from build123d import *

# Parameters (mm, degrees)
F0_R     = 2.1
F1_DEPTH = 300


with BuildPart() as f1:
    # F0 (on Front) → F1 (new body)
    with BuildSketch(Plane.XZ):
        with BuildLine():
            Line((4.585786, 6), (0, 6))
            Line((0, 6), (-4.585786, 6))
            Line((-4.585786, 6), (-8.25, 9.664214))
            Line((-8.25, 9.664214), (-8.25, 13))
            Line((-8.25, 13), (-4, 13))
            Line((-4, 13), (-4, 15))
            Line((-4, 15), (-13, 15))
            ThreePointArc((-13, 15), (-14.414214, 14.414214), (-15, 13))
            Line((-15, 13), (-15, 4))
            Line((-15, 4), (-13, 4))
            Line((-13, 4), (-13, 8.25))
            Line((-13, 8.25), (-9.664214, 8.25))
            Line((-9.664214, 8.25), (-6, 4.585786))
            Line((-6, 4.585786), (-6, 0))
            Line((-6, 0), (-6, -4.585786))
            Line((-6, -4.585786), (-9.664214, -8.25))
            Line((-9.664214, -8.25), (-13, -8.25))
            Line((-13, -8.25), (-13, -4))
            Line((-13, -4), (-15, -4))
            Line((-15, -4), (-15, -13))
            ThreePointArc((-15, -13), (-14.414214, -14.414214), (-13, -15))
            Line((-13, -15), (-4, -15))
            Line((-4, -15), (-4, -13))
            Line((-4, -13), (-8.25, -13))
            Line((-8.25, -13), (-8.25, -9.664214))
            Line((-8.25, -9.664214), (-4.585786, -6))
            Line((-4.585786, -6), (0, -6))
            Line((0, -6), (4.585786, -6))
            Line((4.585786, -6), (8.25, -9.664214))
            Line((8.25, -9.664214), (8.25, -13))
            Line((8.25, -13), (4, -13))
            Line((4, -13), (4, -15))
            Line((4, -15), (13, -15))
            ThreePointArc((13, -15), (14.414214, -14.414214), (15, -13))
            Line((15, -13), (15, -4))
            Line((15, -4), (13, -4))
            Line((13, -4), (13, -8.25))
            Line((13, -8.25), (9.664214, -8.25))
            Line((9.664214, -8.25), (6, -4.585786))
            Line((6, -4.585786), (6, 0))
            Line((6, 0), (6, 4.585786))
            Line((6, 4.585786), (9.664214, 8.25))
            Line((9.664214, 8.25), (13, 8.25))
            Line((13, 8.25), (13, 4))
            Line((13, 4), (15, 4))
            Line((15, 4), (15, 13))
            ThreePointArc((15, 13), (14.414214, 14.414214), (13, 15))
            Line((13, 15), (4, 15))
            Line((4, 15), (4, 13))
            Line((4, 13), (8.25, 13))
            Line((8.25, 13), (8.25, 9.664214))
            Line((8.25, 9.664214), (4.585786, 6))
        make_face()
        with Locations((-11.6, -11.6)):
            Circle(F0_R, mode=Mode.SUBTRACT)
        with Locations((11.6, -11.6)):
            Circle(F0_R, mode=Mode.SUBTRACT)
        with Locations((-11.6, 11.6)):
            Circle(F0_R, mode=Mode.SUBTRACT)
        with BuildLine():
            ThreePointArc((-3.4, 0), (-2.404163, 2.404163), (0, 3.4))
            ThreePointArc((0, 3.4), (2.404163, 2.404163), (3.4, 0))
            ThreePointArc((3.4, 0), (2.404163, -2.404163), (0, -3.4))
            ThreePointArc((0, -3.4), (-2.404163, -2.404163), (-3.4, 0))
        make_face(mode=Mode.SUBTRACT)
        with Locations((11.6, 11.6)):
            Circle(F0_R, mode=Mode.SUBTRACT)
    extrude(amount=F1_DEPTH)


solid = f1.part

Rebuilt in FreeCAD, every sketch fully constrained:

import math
import FreeCAD as App
import Part
import Sketcher

V = App.Vector
Q = App.Units.Quantity

doc = App.newDocument("Part")
body = doc.addObject("PartDesign::Body", "Body")

# Sketch on XZ plane
sketch1 = body.newObject("Sketcher::SketchObject", "Sketch")
sketch1.AttachmentSupport = (doc.getObject("XZ_Plane"), [""])
sketch1.MapMode = "FlatFace"
sketch1.addGeometry([
    Part.LineSegment(V(4.585786, 6, 0), V(-4.585786, 6, 0)),  # 0
    Part.LineSegment(V(-4.585786, 6, 0), V(-8.25, 9.664214, 0)),  # 1
    Part.LineSegment(V(-8.25, 9.664214, 0), V(-8.25, 13, 0)),  # 2
    Part.LineSegment(V(-8.25, 13, 0), V(-4, 13, 0)),  # 3
    Part.LineSegment(V(-4, 13, 0), V(-4, 15, 0)),  # 4
    Part.LineSegment(V(-4, 15, 0), V(-13, 15, 0)),  # 5
    Part.ArcOfCircle(Part.Circle(V(-13.000001, 13.000001, 0), V(0, 0, 1), 1.999999), math.radians(89.999957), math.radians(180.000043)),  # 6
    Part.LineSegment(V(-15, 13, 0), V(-15, 4, 0)),  # 7
    Part.LineSegment(V(-15, 4, 0), V(-13, 4, 0)),  # 8
    Part.LineSegment(V(-13, 4, 0), V(-13, 8.25, 0)),  # 9
    Part.LineSegment(V(-13, 8.25, 0), V(-9.664214, 8.25, 0)),  # 10
    Part.LineSegment(V(-9.664214, 8.25, 0), V(-6, 4.585786, 0)),  # 11
    Part.LineSegment(V(-6, 4.585786, 0), V(-6, -4.585786, 0)),  # 12
    Part.LineSegment(V(-6, -4.585786, 0), V(-9.664214, -8.25, 0)),  # 13
    Part.LineSegment(V(-9.664214, -8.25, 0), V(-13, -8.25, 0)),  # 14
    Part.LineSegment(V(-13, -8.25, 0), V(-13, -4, 0)),  # 15
    Part.LineSegment(V(-13, -4, 0), V(-15, -4, 0)),  # 16
    Part.LineSegment(V(-15, -4, 0), V(-15, -13, 0)),  # 17
    Part.ArcOfCircle(Part.Circle(V(-13.000001, -13.000001, 0), V(0, 0, 1), 1.999999), math.radians(179.999957), math.radians(270.000043)),  # 18
    Part.LineSegment(V(-13, -15, 0), V(-4, -15, 0)),  # 19
    Part.LineSegment(V(-4, -15, 0), V(-4, -13, 0)),  # 20
    Part.LineSegment(V(-4, -13, 0), V(-8.25, -13, 0)),  # 21
    Part.LineSegment(V(-8.25, -13, 0), V(-8.25, -9.664214, 0)),  # 22
    Part.LineSegment(V(-8.25, -9.664214, 0), V(-4.585786, -6, 0)),  # 23
    Part.LineSegment(V(-4.585786, -6, 0), V(4.585786, -6, 0)),  # 24
    Part.LineSegment(V(4.585786, -6, 0), V(8.25, -9.664214, 0)),  # 25
    Part.LineSegment(V(8.25, -9.664214, 0), V(8.25, -13, 0)),  # 26
    Part.LineSegment(V(8.25, -13, 0), V(4, -13, 0)),  # 27
    Part.LineSegment(V(4, -13, 0), V(4, -15, 0)),  # 28
    Part.LineSegment(V(4, -15, 0), V(13, -15, 0)),  # 29
    Part.ArcOfCircle(Part.Circle(V(13.000001, -13.000001, 0), V(0, 0, 1), 1.999999), math.radians(-90.000043), math.radians(0.000043)),  # 30
    Part.LineSegment(V(15, -13, 0), V(15, -4, 0)),  # 31
    Part.LineSegment(V(15, -4, 0), V(13, -4, 0)),  # 32
    Part.LineSegment(V(13, -4, 0), V(13, -8.25, 0)),  # 33
    Part.LineSegment(V(13, -8.25, 0), V(9.664214, -8.25, 0)),  # 34
    Part.LineSegment(V(9.664214, -8.25, 0), V(6, -4.585786, 0)),  # 35
    Part.LineSegment(V(6, -4.585786, 0), V(6, 4.585786, 0)),  # 36
    Part.LineSegment(V(6, 4.585786, 0), V(9.664214, 8.25, 0)),  # 37
    Part.LineSegment(V(9.664214, 8.25, 0), V(13, 8.25, 0)),  # 38
    Part.LineSegment(V(13, 8.25, 0), V(13, 4, 0)),  # 39
    Part.LineSegment(V(13, 4, 0), V(15, 4, 0)),  # 40
    Part.LineSegment(V(15, 4, 0), V(15, 13, 0)),  # 41
    Part.ArcOfCircle(Part.Circle(V(13.000001, 13.000001, 0), V(0, 0, 1), 1.999999), math.radians(-0.000043), math.radians(90.000043)),  # 42
    Part.LineSegment(V(13, 15, 0), V(4, 15, 0)),  # 43
    Part.LineSegment(V(4, 15, 0), V(4, 13, 0)),  # 44
    Part.LineSegment(V(4, 13, 0), V(8.25, 13, 0)),  # 45
    Part.LineSegment(V(8.25, 13, 0), V(8.25, 9.664214, 0)),  # 46
    Part.LineSegment(V(8.25, 9.664214, 0), V(4.585786, 6, 0)),  # 47
    Part.Circle(V(-11.6, -11.6, 0), V(0, 0, 1), 2.1),  # 48
    Part.Circle(V(11.6, -11.6, 0), V(0, 0, 1), 2.1),  # 49
    Part.Circle(V(-11.6, 11.6, 0), V(0, 0, 1), 2.1),  # 50
    Part.ArcOfCircle(Part.Circle(V(0, 0, 0), V(0, 0, 1), 3.4), math.radians(-179.999997), math.radians(-90.000003)),  # 51
    Part.ArcOfCircle(Part.Circle(V(0, 0, 0), V(0, 0, 1), 3.4), math.radians(90.000003), math.radians(179.999997)),  # 52
    Part.ArcOfCircle(Part.Circle(V(0, 0, 0), V(0, 0, 1), 3.4), math.radians(0.000003), math.radians(89.999997)),  # 53
    Part.ArcOfCircle(Part.Circle(V(0, 0, 0), V(0, 0, 1), 3.4), math.radians(-89.999997), math.radians(-0.000003)),  # 54
    Part.Circle(V(11.6, 11.6, 0), V(0, 0, 1), 2.1),  # 55
], False)
sketch1.addConstraint([
    Sketcher.Constraint("Coincident", 0, 2, 1, 1),
    Sketcher.Constraint("Coincident", 1, 2, 2, 1),
    Sketcher.Constraint("Coincident", 2, 2, 3, 1),
    Sketcher.Constraint("Coincident", 3, 2, 4, 1),
    Sketcher.Constraint("Coincident", 4, 2, 5, 1),
    Sketcher.Constraint("Tangent", 5, 2, 6, 1),
    Sketcher.Constraint("Tangent", 6, 2, 7, 1),
    Sketcher.Constraint("Coincident", 7, 2, 8, 1),
    Sketcher.Constraint("Coincident", 8, 2, 9, 1),
    Sketcher.Constraint("Coincident", 9, 2, 10, 1),
    Sketcher.Constraint("Coincident", 10, 2, 11, 1),
    Sketcher.Constraint("Coincident", 11, 2, 12, 1),
    Sketcher.Constraint("Coincident", 12, 2, 13, 1),
    Sketcher.Constraint("Coincident", 13, 2, 14, 1),
    Sketcher.Constraint("Coincident", 14, 2, 15, 1),
    Sketcher.Constraint("Coincident", 15, 2, 16, 1),
    Sketcher.Constraint("Coincident", 16, 2, 17, 1),
    Sketcher.Constraint("Tangent", 17, 2, 18, 1),
    Sketcher.Constraint("Tangent", 18, 2, 19, 1),
    Sketcher.Constraint("Coincident", 19, 2, 20, 1),
    Sketcher.Constraint("Coincident", 20, 2, 21, 1),
    Sketcher.Constraint("Coincident", 21, 2, 22, 1),
    Sketcher.Constraint("Coincident", 22, 2, 23, 1),
    Sketcher.Constraint("Coincident", 23, 2, 24, 1),
    Sketcher.Constraint("Coincident", 24, 2, 25, 1),
    Sketcher.Constraint("Coincident", 25, 2, 26, 1),
    Sketcher.Constraint("Coincident", 26, 2, 27, 1),
    Sketcher.Constraint("Coincident", 27, 2, 28, 1),
    Sketcher.Constraint("Coincident", 28, 2, 29, 1),
    Sketcher.Constraint("Tangent", 29, 2, 30, 1),
    Sketcher.Constraint("Tangent", 30, 2, 31, 1),
    Sketcher.Constraint("Coincident", 31, 2, 32, 1),
    Sketcher.Constraint("Coincident", 32, 2, 33, 1),
    Sketcher.Constraint("Coincident", 33, 2, 34, 1),
    Sketcher.Constraint("Coincident", 34, 2, 35, 1),
    Sketcher.Constraint("Coincident", 35, 2, 36, 1),
    Sketcher.Constraint("Coincident", 36, 2, 37, 1),
    Sketcher.Constraint("Coincident", 37, 2, 38, 1),
    Sketcher.Constraint("Coincident", 38, 2, 39, 1),
    Sketcher.Constraint("Coincident", 39, 2, 40, 1),
    Sketcher.Constraint("Coincident", 40, 2, 41, 1),
    Sketcher.Constraint("Tangent", 41, 2, 42, 1),
    Sketcher.Constraint("Tangent", 42, 2, 43, 1),
    Sketcher.Constraint("Coincident", 43, 2, 44, 1),
    Sketcher.Constraint("Coincident", 44, 2, 45, 1),
    Sketcher.Constraint("Coincident", 45, 2, 46, 1),
    Sketcher.Constraint("Coincident", 46, 2, 47, 1),
    Sketcher.Constraint("Coincident", 47, 2, 0, 1),
    Sketcher.Constraint("Tangent", 51, 1, 52, 2),
    Sketcher.Constraint("Tangent", 52, 1, 53, 2),
    Sketcher.Constraint("Tangent", 53, 1, 54, 2),
    Sketcher.Constraint("Tangent", 54, 1, 51, 2),
    Sketcher.Constraint("Horizontal", 0),
    Sketcher.Constraint("Vertical", 2),
    Sketcher.Constraint("Horizontal", 3),
    Sketcher.Constraint("Vertical", 4),
    Sketcher.Constraint("Horizontal", 5),
    Sketcher.Constraint("Vertical", 7),
    Sketcher.Constraint("Horizontal", 8),
    Sketcher.Constraint("Vertical", 9),
    Sketcher.Constraint("Horizontal", 10),
    Sketcher.Constraint("Vertical", 12),
    Sketcher.Constraint("Horizontal", 14),
    Sketcher.Constraint("Vertical", 15),
    Sketcher.Constraint("Horizontal", 16),
    Sketcher.Constraint("Vertical", 17),
    Sketcher.Constraint("Horizontal", 19),
    Sketcher.Constraint("Vertical", 20),
    Sketcher.Constraint("Horizontal", 21),
    Sketcher.Constraint("Vertical", 22),
    Sketcher.Constraint("Horizontal", 24),
    Sketcher.Constraint("Vertical", 26),
    Sketcher.Constraint("Horizontal", 27),
    Sketcher.Constraint("Vertical", 28),
    Sketcher.Constraint("Horizontal", 29),
    Sketcher.Constraint("Vertical", 31),
    Sketcher.Constraint("Horizontal", 32),
    Sketcher.Constraint("Vertical", 33),
    Sketcher.Constraint("Horizontal", 34),
    Sketcher.Constraint("Vertical", 36),
    Sketcher.Constraint("Horizontal", 38),
    Sketcher.Constraint("Vertical", 39),
    Sketcher.Constraint("Horizontal", 40),
    Sketcher.Constraint("Vertical", 41),
    Sketcher.Constraint("Horizontal", 43),
    Sketcher.Constraint("Vertical", 44),
    Sketcher.Constraint("Horizontal", 45),
    Sketcher.Constraint("Vertical", 46),
    Sketcher.Constraint("Coincident", 51, 3, -1, 1),
    Sketcher.Constraint("Equal", 6, 18),
    Sketcher.Constraint("Equal", 18, 30),
    Sketcher.Constraint("Equal", 30, 42),
    Sketcher.Constraint("Equal", 48, 49),
    Sketcher.Constraint("Equal", 49, 50),
    Sketcher.Constraint("Equal", 51, 52),
    Sketcher.Constraint("Equal", 50, 55),
    Sketcher.Constraint("Symmetric", 6, 3, 30, 3, -1, 1),
    Sketcher.Constraint("Symmetric", 18, 3, 42, 3, -1, 1),
    Sketcher.Constraint("Symmetric", 49, 3, 50, 3, -1, 1),
    Sketcher.Constraint("Symmetric", 48, 3, 55, 3, -1, 1),
    Sketcher.Constraint("Symmetric", 0, 2, 24, 2, -1, 1),
    Sketcher.Constraint("Symmetric", 1, 2, 25, 2, -1, 1),
    Sketcher.Constraint("Symmetric", 3, 2, 27, 2, -1, 1),
    Sketcher.Constraint("Symmetric", 8, 2, 32, 2, -1, 1),
    Sketcher.Constraint("Symmetric", 10, 2, 34, 2, -1, 1),
    Sketcher.Constraint("Symmetric", 11, 2, 35, 2, -1, 1),
    Sketcher.Constraint("Symmetric", 13, 2, 37, 2, -1, 1),
    Sketcher.Constraint("Symmetric", 15, 2, 39, 2, -1, 1),
    Sketcher.Constraint("Symmetric", 20, 2, 44, 2, -1, 1),
    Sketcher.Constraint("Symmetric", 22, 2, 46, 2, -1, 1),
    Sketcher.Constraint("Symmetric", 18, 3, 30, 3, -2),
    Sketcher.Constraint("Symmetric", 48, 3, 49, 3, -2),
    Sketcher.Constraint("Symmetric", 22, 2, 25, 2, -2),
    Sketcher.Constraint("Symmetric", 20, 2, 27, 2, -2),
    Sketcher.Constraint("Symmetric", 15, 2, 32, 2, -2),
    Sketcher.Constraint("Symmetric", 13, 2, 34, 2, -2),
    Sketcher.Constraint("PointOnObject", 51, 1, -1),
    Sketcher.Constraint("PointOnObject", 52, 1, -2),
    Sketcher.Constraint("PointOnObject", 53, 1, -1),
    Sketcher.Constraint("PointOnObject", 54, 1, -2),
    Sketcher.Constraint("Parallel", 1, 11),
    Sketcher.Constraint("Perpendicular", 11, 13),
    Sketcher.Constraint("Parallel", 13, 23),
    Sketcher.Constraint("Perpendicular", 35, 37),
    Sketcher.Constraint("Parallel", 37, 47),
    Sketcher.Constraint("Horizontal", 42, 3, 2, 2),
    Sketcher.Constraint("Horizontal", 12, 2, 35, 2),
    Sketcher.Constraint("Vertical", 5, 2, 8, 2),
    Sketcher.Constraint("Equal", 38, 2),
    Sketcher.Constraint("Equal", 43, 7),
    Sketcher.Constraint("Equal", 45, 9),
    Sketcher.Constraint("Equal", 24, 12),
    Sketcher.Constraint("Equal", 1, 11),
    Sketcher.Constraint("Radius", 6, Q("1.999999 mm")),
    Sketcher.Constraint("Diameter", 48, Q("4.2 mm")),
    Sketcher.Constraint("Radius", 51, Q("3.4 mm")),
    Sketcher.Constraint("DistanceX", 5, 2, 5, 1, Q("9 mm")),
    Sketcher.Constraint("DistanceX", 6, 3, -1, 1, Q("13.000001 mm")),
    Sketcher.Constraint("DistanceY", -1, 1, 0, 2, Q("6 mm")),
    Sketcher.Constraint("DistanceX", 3, 1, 3, 2, Q("4.25 mm")),
    Sketcher.Constraint("DistanceX", 48, 3, -1, 1, Q("11.6 mm")),
    Sketcher.Constraint("DistanceY", 48, 3, -1, 1, Q("11.6 mm")),
    Sketcher.Constraint("Distance", 1, Q("5.181981 mm")),
])
pad1 = body.newObject("PartDesign::Pad", "Pad")
pad1.Profile = sketch1
pad1.Length = 300

doc.recompute()
